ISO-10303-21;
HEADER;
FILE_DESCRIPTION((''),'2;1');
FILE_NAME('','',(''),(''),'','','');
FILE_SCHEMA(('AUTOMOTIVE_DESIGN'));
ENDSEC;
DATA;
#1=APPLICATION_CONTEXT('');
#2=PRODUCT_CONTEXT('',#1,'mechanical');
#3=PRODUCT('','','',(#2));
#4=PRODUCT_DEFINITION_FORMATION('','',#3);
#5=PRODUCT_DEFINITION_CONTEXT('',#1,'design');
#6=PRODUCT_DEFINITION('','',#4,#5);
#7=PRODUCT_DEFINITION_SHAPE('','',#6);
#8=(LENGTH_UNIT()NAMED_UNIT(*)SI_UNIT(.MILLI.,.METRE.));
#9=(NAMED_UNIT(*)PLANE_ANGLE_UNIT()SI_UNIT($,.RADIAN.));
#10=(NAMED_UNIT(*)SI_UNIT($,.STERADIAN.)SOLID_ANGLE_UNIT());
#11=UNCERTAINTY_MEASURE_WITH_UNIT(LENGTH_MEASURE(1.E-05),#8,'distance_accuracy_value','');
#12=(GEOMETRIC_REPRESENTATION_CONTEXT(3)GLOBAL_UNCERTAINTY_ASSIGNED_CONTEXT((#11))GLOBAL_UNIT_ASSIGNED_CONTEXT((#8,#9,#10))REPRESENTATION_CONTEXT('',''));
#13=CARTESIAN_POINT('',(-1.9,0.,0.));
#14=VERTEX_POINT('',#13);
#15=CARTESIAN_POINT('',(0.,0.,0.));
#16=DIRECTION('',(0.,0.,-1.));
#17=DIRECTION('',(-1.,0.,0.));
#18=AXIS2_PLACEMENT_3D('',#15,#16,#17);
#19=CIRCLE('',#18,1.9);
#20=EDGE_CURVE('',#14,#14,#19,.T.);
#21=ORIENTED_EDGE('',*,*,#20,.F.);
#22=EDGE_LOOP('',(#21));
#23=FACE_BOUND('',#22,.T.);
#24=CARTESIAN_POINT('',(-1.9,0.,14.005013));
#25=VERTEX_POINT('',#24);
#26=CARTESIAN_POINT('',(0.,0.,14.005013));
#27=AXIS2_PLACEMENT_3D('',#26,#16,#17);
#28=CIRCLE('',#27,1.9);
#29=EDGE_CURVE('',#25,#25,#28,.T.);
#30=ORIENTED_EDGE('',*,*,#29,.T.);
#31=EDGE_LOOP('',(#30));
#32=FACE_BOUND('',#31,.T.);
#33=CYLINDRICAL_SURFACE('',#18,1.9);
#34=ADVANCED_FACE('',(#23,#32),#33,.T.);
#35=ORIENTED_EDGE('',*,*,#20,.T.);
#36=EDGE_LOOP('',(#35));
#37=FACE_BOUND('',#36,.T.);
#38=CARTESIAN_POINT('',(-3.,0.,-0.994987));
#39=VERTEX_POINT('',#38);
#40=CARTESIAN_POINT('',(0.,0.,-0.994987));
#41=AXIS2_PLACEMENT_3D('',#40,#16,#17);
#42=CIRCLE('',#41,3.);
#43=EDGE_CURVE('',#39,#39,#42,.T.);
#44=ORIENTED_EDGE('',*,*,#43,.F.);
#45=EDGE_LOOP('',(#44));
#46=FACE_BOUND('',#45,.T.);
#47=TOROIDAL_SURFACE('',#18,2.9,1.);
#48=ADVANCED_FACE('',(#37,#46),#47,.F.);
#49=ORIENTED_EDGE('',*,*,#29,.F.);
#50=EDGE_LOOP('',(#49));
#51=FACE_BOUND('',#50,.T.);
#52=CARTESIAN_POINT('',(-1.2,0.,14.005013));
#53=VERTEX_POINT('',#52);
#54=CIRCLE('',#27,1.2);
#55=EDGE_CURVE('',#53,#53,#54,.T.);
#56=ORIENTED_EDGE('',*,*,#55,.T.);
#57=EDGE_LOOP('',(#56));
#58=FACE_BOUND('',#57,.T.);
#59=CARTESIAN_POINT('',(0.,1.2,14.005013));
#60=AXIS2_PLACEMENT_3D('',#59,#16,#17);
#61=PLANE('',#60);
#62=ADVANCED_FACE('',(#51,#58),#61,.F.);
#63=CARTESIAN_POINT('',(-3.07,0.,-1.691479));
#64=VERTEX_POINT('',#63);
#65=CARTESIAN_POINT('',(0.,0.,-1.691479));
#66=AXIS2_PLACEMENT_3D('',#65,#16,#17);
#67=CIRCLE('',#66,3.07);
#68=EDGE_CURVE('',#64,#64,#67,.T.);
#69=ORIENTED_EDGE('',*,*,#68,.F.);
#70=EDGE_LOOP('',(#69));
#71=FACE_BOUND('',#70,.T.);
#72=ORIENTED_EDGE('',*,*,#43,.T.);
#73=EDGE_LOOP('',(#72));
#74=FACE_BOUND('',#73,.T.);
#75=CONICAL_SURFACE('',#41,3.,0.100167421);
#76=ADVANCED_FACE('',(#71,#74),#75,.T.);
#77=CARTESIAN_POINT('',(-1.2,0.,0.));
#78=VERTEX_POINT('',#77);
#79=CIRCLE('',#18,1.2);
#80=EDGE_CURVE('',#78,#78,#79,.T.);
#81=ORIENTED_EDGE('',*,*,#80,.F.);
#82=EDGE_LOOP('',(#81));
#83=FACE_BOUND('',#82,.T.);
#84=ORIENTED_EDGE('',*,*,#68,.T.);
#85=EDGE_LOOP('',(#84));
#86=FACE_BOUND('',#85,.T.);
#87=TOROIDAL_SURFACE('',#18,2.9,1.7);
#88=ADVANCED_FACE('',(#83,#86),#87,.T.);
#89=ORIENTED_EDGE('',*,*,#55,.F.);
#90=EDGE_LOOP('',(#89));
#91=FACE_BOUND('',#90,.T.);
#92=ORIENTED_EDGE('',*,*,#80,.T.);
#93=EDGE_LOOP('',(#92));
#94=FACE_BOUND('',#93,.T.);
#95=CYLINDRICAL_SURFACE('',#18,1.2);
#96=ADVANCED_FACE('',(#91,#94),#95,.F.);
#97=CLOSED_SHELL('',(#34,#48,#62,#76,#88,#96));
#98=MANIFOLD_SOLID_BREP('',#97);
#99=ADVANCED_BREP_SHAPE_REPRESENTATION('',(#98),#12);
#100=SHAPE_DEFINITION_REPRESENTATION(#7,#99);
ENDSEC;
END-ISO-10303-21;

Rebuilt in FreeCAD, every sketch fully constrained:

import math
import FreeCAD as App
import Part
import Sketcher

V = App.Vector
Q = App.Units.Quantity

doc = App.newDocument("Part")
params = doc.addObject("Spreadsheet::Sheet", "Params")
for row, (alias, value) in enumerate([
    ("sketch1_radius", "1 mm"),
    ("sketch1_radius2", "1.7 mm"),
    ("revolution_angle", "360 deg"),
], start=1):
    params.set(f"A{row}", alias)
    params.set(f"B{row}", "=" + value)
    params.setAlias(f"B{row}", alias)

body = doc.addObject("PartDesign::Body", "Body")

# Sketch on YZ plane
sketch1 = doc.addObject("Sketcher::SketchObject", "Sketch")
body.addObject(sketch1)
sketch1.AttachmentSupport = (doc.YZ_Plane, [""])
sketch1.MapMode = "FlatFace"
sketch1.addGeometry([
    Part.ArcOfCircle(Part.Circle(V(2.9, 0, 0), V(0, 0, 1), 1), math.radians(180), math.radians(276)),  # 0
    Part.LineSegment(V(1.9, 0, 0), V(1.9, 14, 0)),  # 1
    Part.LineSegment(V(1.9, 14, 0), V(1.2, 14, 0)),  # 2
    Part.LineSegment(V(1.2, 14, 0), V(1.2, 0, 0)),  # 3
    Part.ArcOfCircle(Part.Circle(V(2.9, 0, 0), V(0, 0, 1), 1.7), math.radians(180), math.radians(276)),  # 4
    Part.LineSegment(V(3.1, -1.7, 0), V(3, -1, 0)),  # 5
], False)
sketch1.addConstraint([
    Sketcher.Constraint("Tangent", 0, 1, 1, 1),
    Sketcher.Constraint("Coincident", 1, 2, 2, 1),
    Sketcher.Constraint("Coincident", 2, 2, 3, 1),
    Sketcher.Constraint("Tangent", 3, 2, 4, 1),
    Sketcher.Constraint("Coincident", 4, 2, 5, 1),
    Sketcher.Constraint("Coincident", 5, 2, 0, 2),
    Sketcher.Constraint("Vertical", 1),
    Sketcher.Constraint("Horizontal", 2),
    Sketcher.Constraint("Vertical", 3),
    Sketcher.Constraint("Coincident", 4, 3, 0, 3),
    Sketcher.Constraint("PointOnObject", 0, 3, -1),
    Sketcher.Constraint("Radius", 0, Q("1 mm")),
    Sketcher.Constraint("Radius", 4, Q("1.7 mm")),
    Sketcher.Constraint("DistanceX", -1, 1, 5, 2, Q("3 mm")),
    Sketcher.Constraint("DistanceX", -1, 1, 0, 3, Q("2.9 mm")),
    Sketcher.Constraint("DistanceX", -1, 1, 4, 2, Q("3.07 mm")),
    Sketcher.Constraint("DistanceY", 1, 1, 1, 2, Q("14.005013 mm")),
])
sketch1.setExpression("Constraints[11]", "Params.sketch1_radius")
sketch1.setExpression("Constraints[12]", "Params.sketch1_radius2")
revolution = doc.addObject("PartDesign::Revolution", "Revolution")
body.addObject(revolution)
revolution.Profile = sketch1
revolution.ReferenceAxis = (sketch1, ["V_Axis"])
revolution.setExpression("Angle", "Params.revolution_angle")

doc.recompute()
